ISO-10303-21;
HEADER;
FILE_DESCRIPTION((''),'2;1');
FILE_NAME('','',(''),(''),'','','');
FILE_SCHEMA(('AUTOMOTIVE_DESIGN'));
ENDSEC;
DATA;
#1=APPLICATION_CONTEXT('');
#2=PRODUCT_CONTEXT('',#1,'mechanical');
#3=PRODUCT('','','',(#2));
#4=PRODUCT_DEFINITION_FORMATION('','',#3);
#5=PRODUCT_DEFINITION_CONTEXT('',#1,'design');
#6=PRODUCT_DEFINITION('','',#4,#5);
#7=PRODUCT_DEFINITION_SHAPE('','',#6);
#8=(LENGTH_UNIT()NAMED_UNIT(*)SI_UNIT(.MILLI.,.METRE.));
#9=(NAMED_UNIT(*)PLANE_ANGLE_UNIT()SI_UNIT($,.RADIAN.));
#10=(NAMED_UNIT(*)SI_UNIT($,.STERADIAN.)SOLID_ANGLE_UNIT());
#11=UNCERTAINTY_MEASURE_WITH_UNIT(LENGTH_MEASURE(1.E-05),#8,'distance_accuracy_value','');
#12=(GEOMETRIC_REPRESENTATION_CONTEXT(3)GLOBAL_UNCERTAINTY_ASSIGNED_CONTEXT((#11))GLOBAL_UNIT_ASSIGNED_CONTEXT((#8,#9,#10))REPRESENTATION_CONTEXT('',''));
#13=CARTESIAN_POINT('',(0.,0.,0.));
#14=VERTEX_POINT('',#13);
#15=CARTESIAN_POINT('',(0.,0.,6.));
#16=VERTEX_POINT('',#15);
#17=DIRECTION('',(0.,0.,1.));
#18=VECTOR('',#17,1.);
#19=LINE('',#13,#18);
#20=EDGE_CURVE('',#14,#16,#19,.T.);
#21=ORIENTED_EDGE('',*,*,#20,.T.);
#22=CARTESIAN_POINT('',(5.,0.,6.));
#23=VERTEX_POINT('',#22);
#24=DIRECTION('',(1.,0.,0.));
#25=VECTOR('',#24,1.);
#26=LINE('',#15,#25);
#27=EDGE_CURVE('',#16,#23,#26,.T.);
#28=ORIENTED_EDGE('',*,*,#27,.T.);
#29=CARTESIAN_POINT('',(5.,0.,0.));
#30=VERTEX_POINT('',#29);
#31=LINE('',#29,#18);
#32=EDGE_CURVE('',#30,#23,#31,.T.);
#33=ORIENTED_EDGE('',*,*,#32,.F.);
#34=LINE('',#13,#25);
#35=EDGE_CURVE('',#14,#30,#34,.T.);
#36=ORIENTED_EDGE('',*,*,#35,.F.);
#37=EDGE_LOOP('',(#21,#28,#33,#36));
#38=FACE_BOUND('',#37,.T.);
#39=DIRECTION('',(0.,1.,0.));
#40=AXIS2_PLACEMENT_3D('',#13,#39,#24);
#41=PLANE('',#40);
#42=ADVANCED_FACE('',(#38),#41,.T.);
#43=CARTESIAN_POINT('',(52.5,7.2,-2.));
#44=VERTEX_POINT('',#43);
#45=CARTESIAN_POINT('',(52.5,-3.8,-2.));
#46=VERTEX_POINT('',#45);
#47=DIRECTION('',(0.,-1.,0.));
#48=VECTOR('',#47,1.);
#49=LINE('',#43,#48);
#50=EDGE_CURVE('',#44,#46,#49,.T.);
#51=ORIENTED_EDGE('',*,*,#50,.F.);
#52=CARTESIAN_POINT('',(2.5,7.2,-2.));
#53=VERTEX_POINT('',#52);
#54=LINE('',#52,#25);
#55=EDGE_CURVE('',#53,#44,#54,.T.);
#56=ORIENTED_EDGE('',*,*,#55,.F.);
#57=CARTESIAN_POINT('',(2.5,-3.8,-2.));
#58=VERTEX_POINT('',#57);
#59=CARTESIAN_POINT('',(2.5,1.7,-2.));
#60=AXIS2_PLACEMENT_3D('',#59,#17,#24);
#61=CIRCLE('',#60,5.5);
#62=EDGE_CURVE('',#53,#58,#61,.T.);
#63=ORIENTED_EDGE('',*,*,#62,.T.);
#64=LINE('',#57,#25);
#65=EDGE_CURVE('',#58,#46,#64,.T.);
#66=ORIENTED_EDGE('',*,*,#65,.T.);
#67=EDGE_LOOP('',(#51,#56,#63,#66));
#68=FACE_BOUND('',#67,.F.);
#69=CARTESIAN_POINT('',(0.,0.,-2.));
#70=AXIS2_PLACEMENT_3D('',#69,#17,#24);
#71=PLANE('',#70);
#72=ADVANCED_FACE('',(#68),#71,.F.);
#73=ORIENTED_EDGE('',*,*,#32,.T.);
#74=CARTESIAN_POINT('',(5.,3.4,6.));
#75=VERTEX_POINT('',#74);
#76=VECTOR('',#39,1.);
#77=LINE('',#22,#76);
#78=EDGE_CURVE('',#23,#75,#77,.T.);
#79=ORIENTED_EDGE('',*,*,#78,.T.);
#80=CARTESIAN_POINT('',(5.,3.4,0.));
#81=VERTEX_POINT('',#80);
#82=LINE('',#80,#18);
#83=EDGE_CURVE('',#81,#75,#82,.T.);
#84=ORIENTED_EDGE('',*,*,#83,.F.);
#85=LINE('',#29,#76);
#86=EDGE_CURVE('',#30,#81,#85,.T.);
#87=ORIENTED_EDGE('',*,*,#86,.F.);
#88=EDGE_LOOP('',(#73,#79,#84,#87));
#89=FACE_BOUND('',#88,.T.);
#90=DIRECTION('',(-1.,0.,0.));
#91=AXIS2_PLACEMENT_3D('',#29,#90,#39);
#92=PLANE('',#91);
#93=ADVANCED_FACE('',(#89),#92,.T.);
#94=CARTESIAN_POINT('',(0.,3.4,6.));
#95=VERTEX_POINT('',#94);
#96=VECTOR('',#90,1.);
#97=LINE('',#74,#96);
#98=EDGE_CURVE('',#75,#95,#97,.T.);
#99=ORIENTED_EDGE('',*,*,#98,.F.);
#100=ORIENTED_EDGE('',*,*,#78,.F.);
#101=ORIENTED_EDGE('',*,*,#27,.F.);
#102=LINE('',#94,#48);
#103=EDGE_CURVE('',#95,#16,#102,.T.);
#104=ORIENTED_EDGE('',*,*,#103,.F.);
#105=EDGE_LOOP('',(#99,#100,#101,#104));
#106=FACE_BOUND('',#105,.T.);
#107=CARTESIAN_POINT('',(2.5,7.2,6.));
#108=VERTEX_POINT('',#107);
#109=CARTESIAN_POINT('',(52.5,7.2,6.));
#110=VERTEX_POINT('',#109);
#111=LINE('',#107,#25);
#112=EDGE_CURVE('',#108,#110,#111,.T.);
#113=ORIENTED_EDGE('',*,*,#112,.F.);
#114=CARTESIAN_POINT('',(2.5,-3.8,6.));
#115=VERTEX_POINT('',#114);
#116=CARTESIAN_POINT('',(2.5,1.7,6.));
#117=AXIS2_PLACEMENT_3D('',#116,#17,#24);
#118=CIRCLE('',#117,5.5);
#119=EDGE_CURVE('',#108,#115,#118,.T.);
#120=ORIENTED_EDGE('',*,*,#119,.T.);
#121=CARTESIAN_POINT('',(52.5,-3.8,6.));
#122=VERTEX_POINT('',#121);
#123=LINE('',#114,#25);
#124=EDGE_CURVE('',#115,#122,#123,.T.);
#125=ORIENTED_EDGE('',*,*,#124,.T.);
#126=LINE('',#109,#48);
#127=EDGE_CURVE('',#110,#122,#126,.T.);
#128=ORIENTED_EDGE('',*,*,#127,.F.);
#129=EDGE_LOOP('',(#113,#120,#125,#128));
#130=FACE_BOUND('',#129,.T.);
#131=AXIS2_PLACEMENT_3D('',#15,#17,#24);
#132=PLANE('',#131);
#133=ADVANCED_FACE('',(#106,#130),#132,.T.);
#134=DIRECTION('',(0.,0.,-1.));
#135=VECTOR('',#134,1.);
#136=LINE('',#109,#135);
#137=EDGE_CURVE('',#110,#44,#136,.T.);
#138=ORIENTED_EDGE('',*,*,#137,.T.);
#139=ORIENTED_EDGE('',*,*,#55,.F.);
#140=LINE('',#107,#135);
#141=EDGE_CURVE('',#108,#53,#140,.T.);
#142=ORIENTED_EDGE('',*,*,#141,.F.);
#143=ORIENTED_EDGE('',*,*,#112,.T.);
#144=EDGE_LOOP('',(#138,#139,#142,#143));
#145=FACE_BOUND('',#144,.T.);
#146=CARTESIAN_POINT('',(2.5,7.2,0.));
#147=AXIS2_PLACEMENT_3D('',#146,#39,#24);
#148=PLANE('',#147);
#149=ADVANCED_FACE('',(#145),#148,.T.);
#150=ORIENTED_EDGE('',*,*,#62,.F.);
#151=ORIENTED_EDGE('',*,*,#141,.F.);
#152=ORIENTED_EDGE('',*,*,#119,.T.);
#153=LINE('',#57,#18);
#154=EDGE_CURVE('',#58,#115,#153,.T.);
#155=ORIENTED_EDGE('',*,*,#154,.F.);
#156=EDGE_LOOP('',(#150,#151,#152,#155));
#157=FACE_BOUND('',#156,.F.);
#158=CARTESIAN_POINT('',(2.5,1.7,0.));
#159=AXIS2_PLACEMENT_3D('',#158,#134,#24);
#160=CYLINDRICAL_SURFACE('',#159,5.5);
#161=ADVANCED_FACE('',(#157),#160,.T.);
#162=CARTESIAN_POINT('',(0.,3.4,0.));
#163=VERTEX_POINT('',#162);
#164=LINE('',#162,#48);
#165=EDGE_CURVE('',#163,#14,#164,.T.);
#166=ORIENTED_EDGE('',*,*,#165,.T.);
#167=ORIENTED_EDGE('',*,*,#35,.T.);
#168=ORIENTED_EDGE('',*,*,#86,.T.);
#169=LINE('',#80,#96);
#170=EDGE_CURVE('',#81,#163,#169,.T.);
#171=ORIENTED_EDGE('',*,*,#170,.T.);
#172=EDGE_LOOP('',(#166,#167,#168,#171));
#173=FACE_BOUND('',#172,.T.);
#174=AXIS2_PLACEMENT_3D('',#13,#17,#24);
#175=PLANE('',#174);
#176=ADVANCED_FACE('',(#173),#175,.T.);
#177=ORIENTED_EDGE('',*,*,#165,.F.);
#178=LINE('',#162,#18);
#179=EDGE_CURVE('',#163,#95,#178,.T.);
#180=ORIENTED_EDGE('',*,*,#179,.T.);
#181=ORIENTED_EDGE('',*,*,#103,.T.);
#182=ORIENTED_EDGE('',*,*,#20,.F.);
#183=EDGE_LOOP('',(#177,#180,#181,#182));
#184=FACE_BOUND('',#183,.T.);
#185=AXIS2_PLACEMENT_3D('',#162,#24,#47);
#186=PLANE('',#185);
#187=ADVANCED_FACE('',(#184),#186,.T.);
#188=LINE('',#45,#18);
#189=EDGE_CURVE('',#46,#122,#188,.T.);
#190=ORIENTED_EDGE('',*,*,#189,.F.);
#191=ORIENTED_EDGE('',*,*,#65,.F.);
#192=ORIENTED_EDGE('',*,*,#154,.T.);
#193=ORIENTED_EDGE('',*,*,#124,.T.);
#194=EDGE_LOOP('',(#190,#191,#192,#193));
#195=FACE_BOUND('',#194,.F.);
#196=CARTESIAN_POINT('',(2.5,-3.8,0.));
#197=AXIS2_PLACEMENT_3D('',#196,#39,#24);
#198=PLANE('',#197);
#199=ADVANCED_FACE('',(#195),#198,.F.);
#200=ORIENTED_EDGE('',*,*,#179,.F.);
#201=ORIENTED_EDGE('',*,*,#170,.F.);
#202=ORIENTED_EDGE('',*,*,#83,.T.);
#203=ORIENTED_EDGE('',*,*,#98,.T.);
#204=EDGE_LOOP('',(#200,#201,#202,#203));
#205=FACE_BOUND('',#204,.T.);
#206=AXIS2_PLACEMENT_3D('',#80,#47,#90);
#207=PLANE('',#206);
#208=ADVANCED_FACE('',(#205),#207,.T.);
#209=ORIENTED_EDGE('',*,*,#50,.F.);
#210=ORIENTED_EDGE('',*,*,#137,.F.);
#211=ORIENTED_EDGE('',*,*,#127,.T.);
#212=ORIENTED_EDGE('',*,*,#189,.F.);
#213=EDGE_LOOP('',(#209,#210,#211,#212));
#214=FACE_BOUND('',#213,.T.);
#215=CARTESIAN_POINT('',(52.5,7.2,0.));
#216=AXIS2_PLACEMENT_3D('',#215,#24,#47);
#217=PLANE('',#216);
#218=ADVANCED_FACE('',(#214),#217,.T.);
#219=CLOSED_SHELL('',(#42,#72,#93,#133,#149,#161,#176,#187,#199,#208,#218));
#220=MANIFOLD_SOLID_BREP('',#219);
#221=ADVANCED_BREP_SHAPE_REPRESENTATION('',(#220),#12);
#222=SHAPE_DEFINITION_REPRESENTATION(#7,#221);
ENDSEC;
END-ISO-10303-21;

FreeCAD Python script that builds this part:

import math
import FreeCAD as App
import Part
import Sketcher
from FreeCAD import Vector

doc = App.newDocument("Part")
body = doc.addObject("PartDesign::Body", "Body")

# Sketch on XY plane
sketch1 = body.newObject("Sketcher::SketchObject", "Sketch")
sketch1.AttachmentSupport = (doc.getObject("XY_Plane"), [""])
sketch1.MapMode = "FlatFace"
sketch1.addGeometry(Part.ArcOfCircle(Part.Circle(Vector(2.5, 1.7, 0), Vector(0, 0, 1), 5.5), math.radians(90), math.radians(270)), False)
sketch1.addGeometry(Part.LineSegment(Vector(2.5, -3.8, 0), Vector(52.5, -3.8, 0)), False)
sketch1.addGeometry(Part.LineSegment(Vector(52.5, -3.8, 0), Vector(52.5, 7.2, 0)), False)
sketch1.addGeometry(Part.LineSegment(Vector(52.5, 7.2, 0), Vector(2.5, 7.2, 0)), False)
sketch1.addGeometry(Part.LineSegment(Vector(5, 0, 0), Vector(0, 0, 0)), False)
sketch1.addGeometry(Part.LineSegment(Vector(0, 0, 0), Vector(0, 3.4, 0)), False)
sketch1.addGeometry(Part.LineSegment(Vector(0, 3.4, 0), Vector(5, 3.4, 0)), False)
sketch1.addGeometry(Part.LineSegment(Vector(5, 3.4, 0), Vector(5, 0, 0)), False)
sketch1.addConstraint(Sketcher.Constraint("Tangent", 0, 2, 1, 1))
sketch1.addConstraint(Sketcher.Constraint("Coincident", 1, 2, 2, 1))
sketch1.addConstraint(Sketcher.Constraint("Coincident", 2, 2, 3, 1))
sketch1.addConstraint(Sketcher.Constraint("Tangent", 3, 2, 0, 1))
sketch1.addConstraint(Sketcher.Constraint("Coincident", 4, 2, 5, 1))
sketch1.addConstraint(Sketcher.Constraint("Coincident", 5, 2, 6, 1))
sketch1.addConstraint(Sketcher.Constraint("Coincident", 6, 2, 7, 1))
sketch1.addConstraint(Sketcher.Constraint("Coincident", 7, 2, 4, 1))
sketch1.addConstraint(Sketcher.Constraint("Horizontal", 1))
sketch1.addConstraint(Sketcher.Constraint("Vertical", 2))
sketch1.addConstraint(Sketcher.Constraint("Horizontal", 3))
sketch1.addConstraint(Sketcher.Constraint("Horizontal", 4))
sketch1.addConstraint(Sketcher.Constraint("Vertical", 5))
sketch1.addConstraint(Sketcher.Constraint("Horizontal", 6))
sketch1.addConstraint(Sketcher.Constraint("Vertical", 7))
sketch1.addConstraint(Sketcher.Constraint("Coincident", 4, 2, -1, 1))
sketch1.addConstraint(Sketcher.Constraint("Radius", 0, 5.5))
sketch1.addConstraint(Sketcher.Constraint("DistanceX", 1, 1, 1, 2, 50.0))
sketch1.addConstraint(Sketcher.Constraint("DistanceX", 4, 2, 4, 1, 5.0))
sketch1.addConstraint(Sketcher.Constraint("DistanceY", 5, 1, 5, 2, 3.4))
sketch1.addConstraint(Sketcher.Constraint("DistanceX", -1, 1, 0, 3, 2.5))
sketch1.addConstraint(Sketcher.Constraint("DistanceY", -1, 1, 0, 3, 1.7))
pad1 = body.newObject("PartDesign::Pad", "Pad")
pad1.Profile = sketch1
pad1.Length = 6

# Sketch on XY plane
sketch2 = body.newObject("Sketcher::SketchObject", "Sketch001")
sketch2.AttachmentSupport = (doc.getObject("XY_Plane"), [""])
sketch2.MapMode = "FlatFace"
sketch2.addGeometry(Part.ArcOfCircle(Part.Circle(Vector(2, 2, 0), Vector(0, 0, 1), 6), math.radians(90), math.radians(270)), False)
sketch2.addGeometry(Part.LineSegment(Vector(2, -4, 0), Vector(52, -4, 0)), False)
sketch2.addGeometry(Part.LineSegment(Vector(52, -4, 0), Vector(52, 7, 0)), False)
sketch2.addGeometry(Part.LineSegment(Vector(52, 7, 0), Vector(2, 7, 0)), False)
sketch2.addConstraint(Sketcher.Constraint("Tangent", 0, 2, 1, 1))
sketch2.addConstraint(Sketcher.Constraint("Coincident", 1, 2, 2, 1))
sketch2.addConstraint(Sketcher.Constraint("Coincident", 2, 2, 3, 1))
sketch2.addConstraint(Sketcher.Constraint("Tangent", 3, 2, 0, 1))
sketch2.addConstraint(Sketcher.Constraint("Horizontal", 1))
sketch2.addConstraint(Sketcher.Constraint("Vertical", 2))
sketch2.addConstraint(Sketcher.Constraint("Horizontal", 3))
sketch2.addConstraint(Sketcher.Constraint("Radius", 0, 5.5))
sketch2.addConstraint(Sketcher.Constraint("DistanceX", 1, 1, 1, 2, 50.0))
sketch2.addConstraint(Sketcher.Constraint("DistanceX", -1, 1, 0, 3, 2.5))
sketch2.addConstraint(Sketcher.Constraint("DistanceY", -1, 1, 0, 3, 1.7))
pad2 = body.newObject("PartDesign::Pad", "Pad001")
pad2.Profile = sketch2
pad2.Length = 2
pad2.Reversed = True

doc.recompute()
